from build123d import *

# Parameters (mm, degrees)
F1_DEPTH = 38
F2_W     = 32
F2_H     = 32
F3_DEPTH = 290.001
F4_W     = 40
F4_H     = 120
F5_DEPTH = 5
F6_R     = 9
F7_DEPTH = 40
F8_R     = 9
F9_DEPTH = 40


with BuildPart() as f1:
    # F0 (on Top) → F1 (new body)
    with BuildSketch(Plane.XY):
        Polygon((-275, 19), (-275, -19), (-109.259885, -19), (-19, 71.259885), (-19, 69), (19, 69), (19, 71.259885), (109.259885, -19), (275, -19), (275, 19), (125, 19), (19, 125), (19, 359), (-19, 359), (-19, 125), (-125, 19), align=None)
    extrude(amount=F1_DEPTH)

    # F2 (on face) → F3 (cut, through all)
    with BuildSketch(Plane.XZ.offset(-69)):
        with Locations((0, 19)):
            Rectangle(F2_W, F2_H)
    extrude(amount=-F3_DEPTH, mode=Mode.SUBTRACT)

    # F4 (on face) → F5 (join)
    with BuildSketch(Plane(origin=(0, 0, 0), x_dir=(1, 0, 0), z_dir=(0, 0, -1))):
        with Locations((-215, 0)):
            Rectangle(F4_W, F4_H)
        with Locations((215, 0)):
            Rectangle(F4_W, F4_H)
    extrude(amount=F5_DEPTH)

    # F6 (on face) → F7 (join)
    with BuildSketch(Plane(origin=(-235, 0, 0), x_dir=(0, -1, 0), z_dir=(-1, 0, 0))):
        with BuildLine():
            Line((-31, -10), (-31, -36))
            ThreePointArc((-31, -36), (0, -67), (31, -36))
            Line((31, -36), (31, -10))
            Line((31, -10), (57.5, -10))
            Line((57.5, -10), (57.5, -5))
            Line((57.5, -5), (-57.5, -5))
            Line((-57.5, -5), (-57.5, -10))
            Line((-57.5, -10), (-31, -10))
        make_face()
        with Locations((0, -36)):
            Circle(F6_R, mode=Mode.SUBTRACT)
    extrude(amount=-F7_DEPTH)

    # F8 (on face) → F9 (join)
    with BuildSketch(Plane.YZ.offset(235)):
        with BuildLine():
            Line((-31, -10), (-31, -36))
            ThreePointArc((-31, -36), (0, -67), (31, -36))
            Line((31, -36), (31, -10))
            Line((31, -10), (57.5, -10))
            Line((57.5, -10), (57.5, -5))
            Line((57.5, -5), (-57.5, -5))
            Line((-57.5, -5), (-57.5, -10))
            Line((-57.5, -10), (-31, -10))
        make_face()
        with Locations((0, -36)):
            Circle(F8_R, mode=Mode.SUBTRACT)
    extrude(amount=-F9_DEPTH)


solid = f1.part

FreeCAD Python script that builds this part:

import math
import FreeCAD as App
import Part
import Sketcher
Q = App.Units.Quantity


def add_polygon(sketch, points):
    """Adds a closed chain of lines whose ends are joined by coincident constraints."""
    first, n = sketch.GeometryCount, len(points)
    for a, b in zip(points, points[1:] + points[:1]):
        sketch.addGeometry(Part.LineSegment(App.Vector(*a, 0), App.Vector(*b, 0)), False)
    for i in range(n):
        sketch.addConstraint(Sketcher.Constraint("Coincident", first + i, 2, first + (i + 1) % n, 1))

doc = App.newDocument("Part")
body = doc.addObject("PartDesign::Body", "Body")

sketch1 = doc.addObject("Sketcher::SketchObject", "Sketch")
body.addObject(sketch1)
sketch1.AttachmentSupport = (doc.XY_Plane, [""])
sketch1.MapMode = "FlatFace"
add_polygon(sketch1, [(-275, 19), (-275, -19), (-109.3, -19), (-19, 71.3), (-19, 69), (19, 69), (19, 71.3), (109.3, -19), (275, -19), (275, 19), (125, 19), (19, 125), (19, 359), (-19, 359), (-19, 125), (-125, 19)])
sketch1.addConstraint([
    Sketcher.Constraint("Vertical", 0),
    Sketcher.Constraint("Horizontal", 1),
    Sketcher.Constraint("Vertical", 3),
    Sketcher.Constraint("Horizontal", 4),
    Sketcher.Constraint("Vertical", 5),
    Sketcher.Constraint("Horizontal", 7),
    Sketcher.Constraint("Vertical", 8),
    Sketcher.Constraint("Horizontal", 9),
    Sketcher.Constraint("Vertical", 11),
    Sketcher.Constraint("Horizontal", 12),
    Sketcher.Constraint("Vertical", 13),
    Sketcher.Constraint("Horizontal", 15),
    Sketcher.Constraint("Symmetric", 0, 2, 8, 2, -1, 1),
    Sketcher.Constraint("Symmetric", 2, 2, 5, 2, -2),
    Sketcher.Constraint("Symmetric", 1, 2, 6, 2, -2),
    Sketcher.Constraint("Symmetric", 10, 2, 13, 2, -2),
    Sketcher.Constraint("Symmetric", 9, 2, 14, 2, -2),
    Sketcher.Constraint("Perpendicular", 2, 6),
    Sketcher.Constraint("Parallel", 6, 10),
    Sketcher.Constraint("Vertical", 5, 2, 10, 2),
    Sketcher.Constraint("Equal", 12, 0),
    Sketcher.Constraint("DistanceX", 4, 1, 4, 2, Q("38 mm")),
    Sketcher.Constraint("DistanceX", 9, 2, 9, 1, Q("150 mm")),
    Sketcher.Constraint("DistanceY", 11, 1, 11, 2, Q("234 mm")),
    Sketcher.Constraint("DistanceX", 0, 2, -1, 1, Q("275 mm")),
    Sketcher.Constraint("DistanceY", -1, 1, 3, 2, Q("69 mm")),
    Sketcher.Constraint("DistanceX", 1, 1, 1, 2, Q("165.740115 mm")),
])
pad1 = doc.addObject("PartDesign::Pad", "Pad")
body.addObject(pad1)
pad1.Profile = sketch1
pad1.Length = 38

sketch2 = doc.addObject("Sketcher::SketchObject", "Sketch001")
body.addObject(sketch2)
sketch2.AttachmentSupport = (doc.XZ_Plane, [""])
sketch2.MapMode = "FlatFace"
sketch2.AttachmentOffset = App.Placement(App.Vector(0, 0, -69), App.Rotation())
add_polygon(sketch2, [(-16, 35), (-16, 3), (16, 3), (16, 35)])
sketch2.addConstraint([
    Sketcher.Constraint("Vertical", 0),
    Sketcher.Constraint("Horizontal", 1),
    Sketcher.Constraint("Vertical", 2),
    Sketcher.Constraint("Horizontal", 3),
    Sketcher.Constraint("Equal", 3, 0),
    Sketcher.Constraint("DistanceX", 1, 1, 1, 2, Q("32 mm")),
    Sketcher.Constraint("DistanceX", 0, 2, -1, 1, Q("16 mm")),
    Sketcher.Constraint("DistanceY", -1, 1, 0, 2, Q("3 mm")),
])
pocket1 = doc.addObject("PartDesign::Pocket", "Pocket")
body.addObject(pocket1)
pocket1.Profile = sketch2
pocket1.Type = "ThroughAll"

sketch3 = doc.addObject("Sketcher::SketchObject", "Sketch002")
body.addObject(sketch3)
sketch3.AttachmentSupport = (doc.XY_Plane, [""])
sketch3.MapMode = "FlatFace"
add_polygon(sketch3, [(-235, -60), (-235, 60), (-195, 60), (-195, -60)])
add_polygon(sketch3, [(195, -60), (195, 60), (235, 60), (235, -60)])
sketch3.addConstraint([
    Sketcher.Constraint("Vertical", 0),
    Sketcher.Constraint("Horizontal", 1),
    Sketcher.Constraint("Vertical", 2),
    Sketcher.Constraint("Horizontal", 3),
    Sketcher.Constraint("Vertical", 4),
    Sketcher.Constraint("Horizontal", 5),
    Sketcher.Constraint("Vertical", 6),
    Sketcher.Constraint("Horizontal", 7),
    Sketcher.Constraint("Symmetric", 2, 2, 4, 2, -1, 1),
    Sketcher.Constraint("Symmetric", 0, 2, 6, 2, -1, 1),
    Sketcher.Constraint("Horizontal", 1, 2, 4, 2),
    Sketcher.Constraint("DistanceX", 1, 1, 1, 2, Q("40 mm")),
    Sketcher.Constraint("DistanceY", 0, 1, 0, 2, Q("120 mm")),
    Sketcher.Constraint("DistanceX", 0, 2, -1, 1, Q("235 mm")),
])
pad2 = doc.addObject("PartDesign::Pad", "Pad001")
body.addObject(pad2)
pad2.Profile = sketch3
pad2.Length = 5
pad2.Reversed = True

sketch4 = doc.addObject("Sketcher::SketchObject", "Sketch003")
body.addObject(sketch4)
sketch4.AttachmentSupport = (doc.YZ_Plane, [""])
sketch4.MapMode = "FlatFace"
sketch4.AttachmentOffset = App.Placement(App.Vector(0, 0, -235), App.Rotation())
sketch4.addGeometry([
    Part.LineSegment(App.Vector(31, -10, 0), App.Vector(31, -36, 0)),
    Part.ArcOfCircle(Part.Circle(App.Vector(0, -36, 0), App.Vector(0, 0, 1), 31), math.radians(180), math.radians(360)),
    Part.LineSegment(App.Vector(-31, -36, 0), App.Vector(-31, -10, 0)),
    Part.LineSegment(App.Vector(-31, -10, 0), App.Vector(-58, -10, 0)),
    Part.LineSegment(App.Vector(-58, -10, 0), App.Vector(-58, -5, 0)),
    Part.LineSegment(App.Vector(-58, -5, 0), App.Vector(58, -5, 0)),
    Part.LineSegment(App.Vector(58, -5, 0), App.Vector(58, -10, 0)),
    Part.LineSegment(App.Vector(58, -10, 0), App.Vector(31, -10, 0)),
    Part.Circle(App.Vector(0, -36, 0), App.Vector(0, 0, 1), 9),
], False)
sketch4.addConstraint([
    Sketcher.Constraint("Tangent", 0, 2, 1, 2),
    Sketcher.Constraint("Tangent", 1, 1, 2, 1),
    Sketcher.Constraint("Coincident", 2, 2, 3, 1),
    Sketcher.Constraint("Coincident", 3, 2, 4, 1),
    Sketcher.Constraint("Coincident", 4, 2, 5, 1),
    Sketcher.Constraint("Coincident", 5, 2, 6, 1),
    Sketcher.Constraint("Coincident", 6, 2, 7, 1),
    Sketcher.Constraint("Coincident", 7, 2, 0, 1),
    Sketcher.Constraint("Vertical", 0),
    Sketcher.Constraint("Vertical", 2),
    Sketcher.Constraint("Horizontal", 3),
    Sketcher.Constraint("Vertical", 4),
    Sketcher.Constraint("Horizontal", 5),
    Sketcher.Constraint("Vertical", 6),
    Sketcher.Constraint("Horizontal", 7),
    Sketcher.Constraint("Coincident", 8, 3, 1, 3),
    Sketcher.Constraint("Symmetric", 3, 2, 6, 2, -2),
    Sketcher.Constraint("PointOnObject", 1, 3, -2),
    Sketcher.Constraint("Diameter", 8, Q("18 mm")),
    Sketcher.Constraint("Radius", 1, Q("31 mm")),
    Sketcher.Constraint("DistanceX", 5, 1, 5, 2, Q("115 mm")),
    Sketcher.Constraint("DistanceY", 0, 2, 0, 1, Q("26 mm")),
    Sketcher.Constraint("DistanceY", 4, 1, 4, 2, Q("5 mm")),
    Sketcher.Constraint("DistanceY", 1, 3, -1, 1, Q("36 mm")),
])
pad3 = doc.addObject("PartDesign::Pad", "Pad002")
body.addObject(pad3)
pad3.Profile = sketch4
pad3.Length = 40

sketch5 = doc.addObject("Sketcher::SketchObject", "Sketch004")
body.addObject(sketch5)
sketch5.AttachmentSupport = (doc.YZ_Plane, [""])
sketch5.MapMode = "FlatFace"
sketch5.AttachmentOffset = App.Placement(App.Vector(0, 0, 235), App.Rotation())
sketch5.addGeometry([
    Part.LineSegment(App.Vector(-31, -10, 0), App.Vector(-31, -36, 0)),
    Part.ArcOfCircle(Part.Circle(App.Vector(0, -36, 0), App.Vector(0, 0, 1), 31), math.radians(180), math.radians(360)),
    Part.LineSegment(App.Vector(31, -36, 0), App.Vector(31, -10, 0)),
    Part.LineSegment(App.Vector(31, -10, 0), App.Vector(58, -10, 0)),
    Part.LineSegment(App.Vector(58, -10, 0), App.Vector(58, -5, 0)),
    Part.LineSegment(App.Vector(58, -5, 0), App.Vector(-58, -5, 0)),
    Part.LineSegment(App.Vector(-58, -5, 0), App.Vector(-58, -10, 0)),
    Part.LineSegment(App.Vector(-58, -10, 0), App.Vector(-31, -10, 0)),
    Part.Circle(App.Vector(0, -36, 0), App.Vector(0, 0, 1), 9),
], False)
sketch5.addConstraint([
    Sketcher.Constraint("Tangent", 0, 2, 1, 1),
    Sketcher.Constraint("Tangent", 1, 2, 2, 1),
    Sketcher.Constraint("Coincident", 2, 2, 3, 1),
    Sketcher.Constraint("Coincident", 3, 2, 4, 1),
    Sketcher.Constraint("Coincident", 4, 2, 5, 1),
    Sketcher.Constraint("Coincident", 5, 2, 6, 1),
    Sketcher.Constraint("Coincident", 6, 2, 7, 1),
    Sketcher.Constraint("Coincident", 7, 2, 0, 1),
    Sketcher.Constraint("Vertical", 0),
    Sketcher.Constraint("Vertical", 2),
    Sketcher.Constraint("Horizontal", 3),
    Sketcher.Constraint("Vertical", 4),
    Sketcher.Constraint("Horizontal", 5),
    Sketcher.Constraint("Vertical", 6),
    Sketcher.Constraint("Horizontal", 7),
    Sketcher.Constraint("Coincident", 8, 3, 1, 3),
    Sketcher.Constraint("Symmetric", 3, 2, 6, 2, -2),
    Sketcher.Constraint("PointOnObject", 1, 3, -2),
    Sketcher.Constraint("Diameter", 8, Q("18 mm")),
    Sketcher.Constraint("Radius", 1, Q("31 mm")),
    Sketcher.Constraint("DistanceX", 5, 2, 5, 1, Q("115 mm")),
    Sketcher.Constraint("DistanceY", 0, 2, 0, 1, Q("26 mm")),
    Sketcher.Constraint("DistanceY", 4, 1, 4, 2, Q("5 mm")),
    Sketcher.Constraint("DistanceY", 1, 3, -1, 1, Q("36 mm")),
])
pad4 = doc.addObject("PartDesign::Pad", "Pad003")
body.addObject(pad4)
pad4.Profile = sketch5
pad4.Length = 40
pad4.Reversed = True

doc.recompute()
